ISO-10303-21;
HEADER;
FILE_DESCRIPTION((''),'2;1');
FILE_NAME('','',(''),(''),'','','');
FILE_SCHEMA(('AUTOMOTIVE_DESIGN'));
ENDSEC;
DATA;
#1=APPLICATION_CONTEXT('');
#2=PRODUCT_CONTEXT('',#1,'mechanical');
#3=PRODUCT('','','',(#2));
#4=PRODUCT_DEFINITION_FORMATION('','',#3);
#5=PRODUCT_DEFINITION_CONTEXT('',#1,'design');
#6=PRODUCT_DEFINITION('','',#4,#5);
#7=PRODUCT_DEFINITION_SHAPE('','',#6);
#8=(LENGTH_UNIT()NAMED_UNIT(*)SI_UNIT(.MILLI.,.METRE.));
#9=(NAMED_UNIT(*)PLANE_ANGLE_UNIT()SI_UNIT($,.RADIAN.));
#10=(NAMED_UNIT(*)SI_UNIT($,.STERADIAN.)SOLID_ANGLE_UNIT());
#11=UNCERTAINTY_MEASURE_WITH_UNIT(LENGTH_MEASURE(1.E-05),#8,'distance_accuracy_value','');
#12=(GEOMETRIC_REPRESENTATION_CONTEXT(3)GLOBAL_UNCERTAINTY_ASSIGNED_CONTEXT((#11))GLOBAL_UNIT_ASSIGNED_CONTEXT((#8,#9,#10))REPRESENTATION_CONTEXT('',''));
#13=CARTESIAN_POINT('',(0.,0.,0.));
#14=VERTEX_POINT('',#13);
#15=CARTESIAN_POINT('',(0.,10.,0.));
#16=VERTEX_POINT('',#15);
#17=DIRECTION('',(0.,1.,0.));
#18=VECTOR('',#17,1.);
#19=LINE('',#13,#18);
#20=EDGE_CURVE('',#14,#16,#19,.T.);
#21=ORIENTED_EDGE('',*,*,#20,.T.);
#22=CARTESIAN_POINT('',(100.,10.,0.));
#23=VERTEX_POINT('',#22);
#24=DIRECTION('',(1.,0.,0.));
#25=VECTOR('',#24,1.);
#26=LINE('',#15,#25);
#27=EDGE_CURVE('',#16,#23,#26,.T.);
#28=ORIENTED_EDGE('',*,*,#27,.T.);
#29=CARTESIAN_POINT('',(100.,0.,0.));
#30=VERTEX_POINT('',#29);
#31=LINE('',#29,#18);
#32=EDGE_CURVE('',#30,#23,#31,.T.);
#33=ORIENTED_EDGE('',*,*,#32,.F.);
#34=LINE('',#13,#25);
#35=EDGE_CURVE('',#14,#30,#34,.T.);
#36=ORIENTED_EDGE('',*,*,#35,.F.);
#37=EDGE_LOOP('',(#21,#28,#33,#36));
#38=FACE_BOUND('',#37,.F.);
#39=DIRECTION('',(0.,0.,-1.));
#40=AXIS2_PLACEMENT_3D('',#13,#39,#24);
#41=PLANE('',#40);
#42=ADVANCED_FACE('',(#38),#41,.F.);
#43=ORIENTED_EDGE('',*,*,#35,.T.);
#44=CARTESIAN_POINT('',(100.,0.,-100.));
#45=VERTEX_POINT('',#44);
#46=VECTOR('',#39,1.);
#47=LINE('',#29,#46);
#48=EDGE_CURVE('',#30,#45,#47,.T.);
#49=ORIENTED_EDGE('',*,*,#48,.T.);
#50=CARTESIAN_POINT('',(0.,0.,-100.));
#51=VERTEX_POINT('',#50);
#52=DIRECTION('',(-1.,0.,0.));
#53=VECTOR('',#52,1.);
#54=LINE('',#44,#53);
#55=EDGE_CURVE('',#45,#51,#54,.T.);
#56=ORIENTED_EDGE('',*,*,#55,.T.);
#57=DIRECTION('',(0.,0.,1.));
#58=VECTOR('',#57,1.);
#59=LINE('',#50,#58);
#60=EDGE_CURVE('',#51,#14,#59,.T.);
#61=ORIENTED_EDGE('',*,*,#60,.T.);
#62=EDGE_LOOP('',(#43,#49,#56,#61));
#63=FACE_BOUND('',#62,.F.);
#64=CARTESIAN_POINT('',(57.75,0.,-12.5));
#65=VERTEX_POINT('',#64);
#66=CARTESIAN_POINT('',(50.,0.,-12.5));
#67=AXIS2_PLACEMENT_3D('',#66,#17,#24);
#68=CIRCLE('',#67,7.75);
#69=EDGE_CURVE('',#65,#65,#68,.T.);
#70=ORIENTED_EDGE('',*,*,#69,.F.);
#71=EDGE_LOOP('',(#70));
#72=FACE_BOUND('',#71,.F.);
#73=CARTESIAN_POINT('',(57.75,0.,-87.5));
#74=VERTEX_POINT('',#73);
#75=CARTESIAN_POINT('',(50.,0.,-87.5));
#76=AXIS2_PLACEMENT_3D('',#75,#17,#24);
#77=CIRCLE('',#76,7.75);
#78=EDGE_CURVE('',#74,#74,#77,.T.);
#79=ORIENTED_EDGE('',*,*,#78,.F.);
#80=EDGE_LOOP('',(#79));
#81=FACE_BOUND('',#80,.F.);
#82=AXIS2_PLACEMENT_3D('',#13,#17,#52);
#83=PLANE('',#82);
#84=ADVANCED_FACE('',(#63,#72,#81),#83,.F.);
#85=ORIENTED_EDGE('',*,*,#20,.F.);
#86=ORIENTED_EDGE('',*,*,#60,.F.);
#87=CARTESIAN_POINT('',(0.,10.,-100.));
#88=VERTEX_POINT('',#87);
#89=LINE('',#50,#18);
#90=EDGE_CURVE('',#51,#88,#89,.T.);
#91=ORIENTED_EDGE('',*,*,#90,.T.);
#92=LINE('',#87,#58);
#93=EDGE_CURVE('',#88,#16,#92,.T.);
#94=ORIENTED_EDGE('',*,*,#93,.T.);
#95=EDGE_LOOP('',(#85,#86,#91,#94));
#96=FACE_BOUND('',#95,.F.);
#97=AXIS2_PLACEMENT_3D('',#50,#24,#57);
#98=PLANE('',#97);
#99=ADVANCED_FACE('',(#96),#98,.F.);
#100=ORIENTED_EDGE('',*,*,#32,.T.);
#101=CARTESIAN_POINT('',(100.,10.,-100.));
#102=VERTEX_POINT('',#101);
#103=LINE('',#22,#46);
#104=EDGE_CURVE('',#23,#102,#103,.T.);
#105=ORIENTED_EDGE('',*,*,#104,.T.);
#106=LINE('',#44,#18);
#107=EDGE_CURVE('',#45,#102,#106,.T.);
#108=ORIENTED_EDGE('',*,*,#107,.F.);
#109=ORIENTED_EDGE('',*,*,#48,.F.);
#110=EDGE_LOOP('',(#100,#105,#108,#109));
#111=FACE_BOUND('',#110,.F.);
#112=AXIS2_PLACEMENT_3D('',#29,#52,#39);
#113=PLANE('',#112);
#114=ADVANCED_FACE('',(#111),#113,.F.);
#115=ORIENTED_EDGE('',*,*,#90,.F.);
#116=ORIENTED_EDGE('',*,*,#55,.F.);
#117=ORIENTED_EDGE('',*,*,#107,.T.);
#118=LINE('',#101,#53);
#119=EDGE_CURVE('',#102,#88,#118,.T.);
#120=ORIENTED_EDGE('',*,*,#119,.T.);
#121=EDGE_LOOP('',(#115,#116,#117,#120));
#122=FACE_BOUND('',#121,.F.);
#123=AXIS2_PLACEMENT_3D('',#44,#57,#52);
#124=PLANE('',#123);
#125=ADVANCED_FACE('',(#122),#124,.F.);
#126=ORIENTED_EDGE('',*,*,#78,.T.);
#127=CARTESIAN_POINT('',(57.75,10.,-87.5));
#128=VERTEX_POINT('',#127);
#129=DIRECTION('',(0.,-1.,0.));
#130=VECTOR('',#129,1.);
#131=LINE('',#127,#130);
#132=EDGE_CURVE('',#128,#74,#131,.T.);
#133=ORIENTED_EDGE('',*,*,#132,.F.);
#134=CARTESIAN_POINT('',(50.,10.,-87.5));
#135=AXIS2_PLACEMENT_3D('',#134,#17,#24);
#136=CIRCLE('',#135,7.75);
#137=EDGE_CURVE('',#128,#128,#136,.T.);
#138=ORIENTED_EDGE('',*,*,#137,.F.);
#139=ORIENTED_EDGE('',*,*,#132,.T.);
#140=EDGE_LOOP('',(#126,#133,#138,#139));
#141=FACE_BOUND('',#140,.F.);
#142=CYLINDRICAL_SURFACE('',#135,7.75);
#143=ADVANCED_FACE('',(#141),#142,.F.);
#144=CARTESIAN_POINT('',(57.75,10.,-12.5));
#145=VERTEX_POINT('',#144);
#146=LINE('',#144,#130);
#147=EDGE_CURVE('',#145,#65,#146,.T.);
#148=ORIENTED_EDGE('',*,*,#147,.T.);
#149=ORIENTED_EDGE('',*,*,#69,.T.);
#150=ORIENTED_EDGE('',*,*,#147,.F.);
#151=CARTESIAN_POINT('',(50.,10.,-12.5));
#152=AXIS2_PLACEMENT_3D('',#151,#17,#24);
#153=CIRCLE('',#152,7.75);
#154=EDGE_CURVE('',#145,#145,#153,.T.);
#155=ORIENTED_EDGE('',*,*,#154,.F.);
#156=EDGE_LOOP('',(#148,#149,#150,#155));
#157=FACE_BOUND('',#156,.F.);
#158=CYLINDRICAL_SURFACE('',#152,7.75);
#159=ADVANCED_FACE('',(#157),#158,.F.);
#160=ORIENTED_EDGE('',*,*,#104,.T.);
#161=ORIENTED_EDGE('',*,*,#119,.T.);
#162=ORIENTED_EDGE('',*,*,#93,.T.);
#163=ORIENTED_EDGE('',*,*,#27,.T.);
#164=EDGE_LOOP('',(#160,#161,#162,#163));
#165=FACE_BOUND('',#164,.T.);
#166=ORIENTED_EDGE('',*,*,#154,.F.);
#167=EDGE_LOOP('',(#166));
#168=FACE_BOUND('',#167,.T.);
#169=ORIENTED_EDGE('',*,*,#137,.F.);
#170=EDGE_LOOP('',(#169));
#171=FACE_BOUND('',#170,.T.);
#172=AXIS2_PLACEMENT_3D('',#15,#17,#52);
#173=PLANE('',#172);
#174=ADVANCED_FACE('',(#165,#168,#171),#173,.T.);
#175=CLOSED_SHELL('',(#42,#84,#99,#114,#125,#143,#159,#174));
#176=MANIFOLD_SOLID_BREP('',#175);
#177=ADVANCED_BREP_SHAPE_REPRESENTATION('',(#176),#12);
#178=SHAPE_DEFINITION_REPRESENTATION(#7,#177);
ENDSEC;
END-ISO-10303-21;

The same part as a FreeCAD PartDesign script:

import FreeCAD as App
import Part
import Sketcher
from FreeCAD import Vector

doc = App.newDocument("Part")
body = doc.addObject("PartDesign::Body", "Body")

# Sketch on XZ plane
sketch1 = body.newObject("Sketcher::SketchObject", "Sketch")
sketch1.AttachmentSupport = (doc.getObject("XZ_Plane"), [""])
sketch1.MapMode = "FlatFace"
sketch1.addGeometry([
    Part.LineSegment(Vector(0, -100, 0), Vector(0, 0, 0)),
    Part.LineSegment(Vector(0, 0, 0), Vector(100, 0, 0)),
    Part.LineSegment(Vector(100, 0, 0), Vector(100, -100, 0)),
    Part.LineSegment(Vector(100, -100, 0), Vector(0, -100, 0)),
], False)
sketch1.addConstraint([
    Sketcher.Constraint("Coincident", 0, 2, 1, 1),
    Sketcher.Constraint("Coincident", 1, 2, 2, 1),
    Sketcher.Constraint("Coincident", 2, 2, 3, 1),
    Sketcher.Constraint("Coincident", 3, 2, 0, 1),
    Sketcher.Constraint("Vertical", 0),
    Sketcher.Constraint("Horizontal", 1),
    Sketcher.Constraint("Vertical", 2),
    Sketcher.Constraint("Horizontal", 3),
    Sketcher.Constraint("Coincident", 0, 2, -1, 1),
    Sketcher.Constraint("Equal", 3, 0),
    Sketcher.Constraint("DistanceX", 1, 1, 1, 2, 100.0),
])
pad1 = body.newObject("PartDesign::Pad", "Pad")
pad1.Profile = sketch1
pad1.Length = 10
pad1.Reversed = True

# Sketch on XZ plane
sketch2 = body.newObject("Sketcher::SketchObject", "Sketch001")
sketch2.AttachmentSupport = (doc.getObject("XZ_Plane"), [""])
sketch2.MapMode = "FlatFace"
sketch2.AttachmentOffset = App.Placement(Vector(0, 0, -10), App.Rotation())
sketch2.addGeometry([
    Part.Circle(Vector(50, -12.5, 0), Vector(0, 0, 1), 7.75),
    Part.Circle(Vector(50, -87.5, 0), Vector(0, 0, 1), 7.75),
], False)
sketch2.addConstraint([
    Sketcher.Constraint("Equal", 0, 1),
    Sketcher.Constraint("Vertical", 0, 3, 1, 3),
    Sketcher.Constraint("Diameter", 0, 15.5),
    Sketcher.Constraint("DistanceX", -1, 1, 0, 3, 50.0),
    Sketcher.Constraint("DistanceY", 0, 3, -1, 1, 12.5),
    Sketcher.Constraint("DistanceY", 1, 3, 0, 3, 75.0),
])
pocket1 = body.newObject("PartDesign::Pocket", "Pocket")
pocket1.Profile = sketch2
pocket1.Length = 10
pocket1.Reversed = True

doc.recompute()
